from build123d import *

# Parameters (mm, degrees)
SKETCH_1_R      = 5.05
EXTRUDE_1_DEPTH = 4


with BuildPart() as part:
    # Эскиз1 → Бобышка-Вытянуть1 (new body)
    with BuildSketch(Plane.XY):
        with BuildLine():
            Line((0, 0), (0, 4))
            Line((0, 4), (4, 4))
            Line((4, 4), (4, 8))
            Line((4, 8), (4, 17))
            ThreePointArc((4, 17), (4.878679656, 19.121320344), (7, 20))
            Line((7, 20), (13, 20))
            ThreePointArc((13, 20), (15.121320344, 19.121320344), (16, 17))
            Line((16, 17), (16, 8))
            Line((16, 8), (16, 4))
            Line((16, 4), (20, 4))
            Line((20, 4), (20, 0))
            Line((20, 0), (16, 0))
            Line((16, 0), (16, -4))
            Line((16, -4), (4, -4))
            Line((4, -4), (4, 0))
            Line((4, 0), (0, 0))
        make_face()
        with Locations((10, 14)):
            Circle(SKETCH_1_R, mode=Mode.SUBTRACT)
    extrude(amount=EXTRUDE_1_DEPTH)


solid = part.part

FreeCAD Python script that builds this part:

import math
import FreeCAD as App
import Part
import Sketcher

V = App.Vector

doc = App.newDocument("Part")
body = doc.addObject("PartDesign::Body", "Body")

# Sketch on XY plane
sketch1 = doc.addObject("Sketcher::SketchObject", "Sketch")
body.addObject(sketch1)
sketch1.AttachmentSupport = (doc.XY_Plane, [""])
sketch1.MapMode = "FlatFace"
sketch1.addGeometry([
    Part.LineSegment(V(0, 4, 0), V(0, 0, 0)),  # 0
    Part.LineSegment(V(0, 0, 0), V(4, 0, 0)),  # 1
    Part.LineSegment(V(4, 0, 0), V(4, -4, 0)),  # 2
    Part.LineSegment(V(4, -4, 0), V(16, -4, 0)),  # 3
    Part.LineSegment(V(16, -4, 0), V(16, 0, 0)),  # 4
    Part.LineSegment(V(16, 0, 0), V(20, 0, 0)),  # 5
    Part.LineSegment(V(20, 0, 0), V(20, 4, 0)),  # 6
    Part.LineSegment(V(20, 4, 0), V(16, 4, 0)),  # 7
    Part.LineSegment(V(16, 4, 0), V(16, 17, 0)),  # 8
    Part.ArcOfCircle(Part.Circle(V(13, 17, 0), V(0, 0, 1), 3), math.radians(0), math.radians(90)),  # 9
    Part.LineSegment(V(13, 20, 0), V(7, 20, 0)),  # 10
    Part.ArcOfCircle(Part.Circle(V(7, 17, 0), V(0, 0, 1), 3), math.radians(90), math.radians(180)),  # 11
    Part.LineSegment(V(4, 17, 0), V(4, 4, 0)),  # 12
    Part.LineSegment(V(4, 4, 0), V(0, 4, 0)),  # 13
    Part.Circle(V(10, 14, 0), V(0, 0, 1), 5.05),  # 14
], False)
sketch1.addConstraint([
    Sketcher.Constraint("Coincident", 0, 2, 1, 1),
    Sketcher.Constraint("Coincident", 1, 2, 2, 1),
    Sketcher.Constraint("Coincident", 2, 2, 3, 1),
    Sketcher.Constraint("Coincident", 3, 2, 4, 1),
    Sketcher.Constraint("Coincident", 4, 2, 5, 1),
    Sketcher.Constraint("Coincident", 5, 2, 6, 1),
    Sketcher.Constraint("Coincident", 6, 2, 7, 1),
    Sketcher.Constraint("Coincident", 7, 2, 8, 1),
    Sketcher.Constraint("Tangent", 8, 2, 9, 1),
    Sketcher.Constraint("Tangent", 9, 2, 10, 1),
    Sketcher.Constraint("Tangent", 10, 2, 11, 1),
    Sketcher.Constraint("Tangent", 11, 2, 12, 1),
    Sketcher.Constraint("Coincident", 12, 2, 13, 1),
    Sketcher.Constraint("Coincident", 13, 2, 0, 1),
    Sketcher.Constraint("Vertical", 0),
    Sketcher.Constraint("Horizontal", 1),
    Sketcher.Constraint("Vertical", 2),
    Sketcher.Constraint("Horizontal", 3),
    Sketcher.Constraint("Vertical", 4),
    Sketcher.Constraint("Horizontal", 5),
    Sketcher.Constraint("Vertical", 6),
    Sketcher.Constraint("Horizontal", 7),
    Sketcher.Constraint("Vertical", 8),
    Sketcher.Constraint("Horizontal", 10),
    Sketcher.Constraint("Vertical", 12),
    Sketcher.Constraint("Horizontal", 13),
    Sketcher.Constraint("Coincident", 0, 2, -1, 1),
    Sketcher.Constraint("Equal", 9, 11),
    Sketcher.Constraint("Symmetric", 3, 2, 7, 2, -1),
    Sketcher.Constraint("Symmetric", 2, 2, 12, 2, -1),
    Sketcher.Constraint("PointOnObject", 4, 2, -1),
    Sketcher.Constraint("Equal", 1, 5),
    Sketcher.Constraint("Equal", 13, 0),
    Sketcher.Constraint("Radius", 9, 3.0),
    Sketcher.Constraint("Diameter", 14, 10.1),
    Sketcher.Constraint("DistanceX", 1, 1, 1, 2, 4.0),
    Sketcher.Constraint("DistanceX", 3, 1, 3, 2, 12.0),
    Sketcher.Constraint("DistanceY", 8, 1, 8, 2, 13.0),
    Sketcher.Constraint("DistanceX", -1, 1, 14, 3, 10.0),
    Sketcher.Constraint("DistanceY", -1, 1, 14, 3, 14.0),
])
pad1 = doc.addObject("PartDesign::Pad", "Pad")
body.addObject(pad1)
pad1.Profile = sketch1
pad1.Length = 4

doc.recompute()
